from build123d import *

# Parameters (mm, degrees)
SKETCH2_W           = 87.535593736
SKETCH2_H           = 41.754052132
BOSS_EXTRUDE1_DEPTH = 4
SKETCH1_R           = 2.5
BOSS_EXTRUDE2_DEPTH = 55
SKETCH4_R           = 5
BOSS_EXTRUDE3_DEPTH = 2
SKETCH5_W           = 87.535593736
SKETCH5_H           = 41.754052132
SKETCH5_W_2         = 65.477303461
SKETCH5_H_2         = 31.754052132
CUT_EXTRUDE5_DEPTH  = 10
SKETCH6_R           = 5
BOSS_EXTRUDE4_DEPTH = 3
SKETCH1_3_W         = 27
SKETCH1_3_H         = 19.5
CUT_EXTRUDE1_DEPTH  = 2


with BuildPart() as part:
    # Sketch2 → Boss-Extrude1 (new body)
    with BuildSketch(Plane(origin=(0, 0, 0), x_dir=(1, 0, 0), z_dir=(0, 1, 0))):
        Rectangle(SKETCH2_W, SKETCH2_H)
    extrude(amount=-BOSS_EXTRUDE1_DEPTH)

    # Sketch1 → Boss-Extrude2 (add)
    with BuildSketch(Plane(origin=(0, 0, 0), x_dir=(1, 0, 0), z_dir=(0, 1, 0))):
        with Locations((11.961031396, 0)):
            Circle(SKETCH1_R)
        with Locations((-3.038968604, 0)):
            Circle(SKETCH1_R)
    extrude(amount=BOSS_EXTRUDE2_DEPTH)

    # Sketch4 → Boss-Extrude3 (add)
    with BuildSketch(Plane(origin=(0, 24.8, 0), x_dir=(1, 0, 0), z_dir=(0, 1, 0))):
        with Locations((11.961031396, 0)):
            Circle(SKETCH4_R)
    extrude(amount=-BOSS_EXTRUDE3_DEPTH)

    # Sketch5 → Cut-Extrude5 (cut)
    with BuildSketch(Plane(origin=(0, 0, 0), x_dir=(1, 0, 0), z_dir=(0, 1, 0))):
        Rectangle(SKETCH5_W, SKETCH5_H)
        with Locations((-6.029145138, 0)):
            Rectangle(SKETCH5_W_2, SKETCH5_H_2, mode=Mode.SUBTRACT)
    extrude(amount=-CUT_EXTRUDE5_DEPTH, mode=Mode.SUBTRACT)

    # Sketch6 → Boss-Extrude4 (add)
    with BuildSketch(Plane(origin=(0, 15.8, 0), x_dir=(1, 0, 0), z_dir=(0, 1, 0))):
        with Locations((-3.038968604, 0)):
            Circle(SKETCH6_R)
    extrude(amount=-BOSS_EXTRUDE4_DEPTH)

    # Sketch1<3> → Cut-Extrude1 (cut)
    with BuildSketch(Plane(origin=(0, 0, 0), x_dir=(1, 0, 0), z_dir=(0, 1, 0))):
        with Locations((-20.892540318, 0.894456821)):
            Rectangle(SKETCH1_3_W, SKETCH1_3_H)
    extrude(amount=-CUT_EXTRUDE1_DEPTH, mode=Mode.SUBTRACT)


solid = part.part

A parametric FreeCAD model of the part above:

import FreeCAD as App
import Part
import Sketcher

V = App.Vector

doc = App.newDocument("Part")
body = doc.addObject("PartDesign::Body", "Body")

# Sketch on XZ plane
sketch1 = doc.addObject("Sketcher::SketchObject", "Sketch")
body.addObject(sketch1)
sketch1.AttachmentSupport = (doc.XZ_Plane, [""])
sketch1.MapMode = "FlatFace"
sketch1.addGeometry(Part.LineSegment(V(-44, -21, 0), V(-44, 21, 0)), False)
sketch1.addGeometry(Part.LineSegment(V(-44, 21, 0), V(44, 21, 0)), False)
sketch1.addGeometry(Part.LineSegment(V(44, 21, 0), V(44, -21, 0)), False)
sketch1.addGeometry(Part.LineSegment(V(44, -21, 0), V(-44, -21, 0)), False)
sketch1.addConstraint(Sketcher.Constraint("Coincident", 0, 2, 1, 1))
sketch1.addConstraint(Sketcher.Constraint("Coincident", 1, 2, 2, 1))
sketch1.addConstraint(Sketcher.Constraint("Coincident", 2, 2, 3, 1))
sketch1.addConstraint(Sketcher.Constraint("Coincident", 3, 2, 0, 1))
sketch1.addConstraint(Sketcher.Constraint("Vertical", 0))
sketch1.addConstraint(Sketcher.Constraint("Horizontal", 1))
sketch1.addConstraint(Sketcher.Constraint("Vertical", 2))
sketch1.addConstraint(Sketcher.Constraint("Horizontal", 3))
sketch1.addConstraint(Sketcher.Constraint("Symmetric", 0, 2, 2, 2, -1, 1))
sketch1.addConstraint(Sketcher.Constraint("DistanceX", 1, 1, 1, 2, 87.535594))
sketch1.addConstraint(Sketcher.Constraint("DistanceY", 0, 1, 0, 2, 41.754052))
pad1 = doc.addObject("PartDesign::Pad", "Pad")
body.addObject(pad1)
pad1.Profile = sketch1
pad1.Length = 4

# Sketch on XZ plane
sketch2 = doc.addObject("Sketcher::SketchObject", "Sketch001")
body.addObject(sketch2)
sketch2.AttachmentSupport = (doc.XZ_Plane, [""])
sketch2.MapMode = "FlatFace"
sketch2.addGeometry(Part.Circle(V(12, 0, 0), V(0, 0, 1), 2.5), False)
sketch2.addGeometry(Part.Circle(V(-3, 0, 0), V(0, 0, 1), 2.5), False)
sketch2.addConstraint(Sketcher.Constraint("Equal", 0, 1))
sketch2.addConstraint(Sketcher.Constraint("PointOnObject", 0, 3, -1))
sketch2.addConstraint(Sketcher.Constraint("PointOnObject", 1, 3, -1))
sketch2.addConstraint(Sketcher.Constraint("Diameter", 0, 5.0))
sketch2.addConstraint(Sketcher.Constraint("DistanceX", 1, 3, 0, 3, 15.0))
sketch2.addConstraint(Sketcher.Constraint("DistanceX", -1, 1, 0, 3, 11.961031))
pad2 = doc.addObject("PartDesign::Pad", "Pad001")
body.addObject(pad2)
pad2.Profile = sketch2
pad2.Length = 55
pad2.Reversed = True

# Sketch on XZ plane
sketch3 = doc.addObject("Sketcher::SketchObject", "Sketch002")
body.addObject(sketch3)
sketch3.AttachmentSupport = (doc.XZ_Plane, [""])
sketch3.MapMode = "FlatFace"
sketch3.AttachmentOffset = App.Placement(V(0, 0, -24.8), App.Rotation())
sketch3.addGeometry(Part.Circle(V(12, 0, 0), V(0, 0, 1), 5), False)
sketch3.addConstraint(Sketcher.Constraint("PointOnObject", 0, 3, -1))
sketch3.addConstraint(Sketcher.Constraint("Diameter", 0, 10.0))
sketch3.addConstraint(Sketcher.Constraint("DistanceX", -1, 1, 0, 3, 11.961031))
pad3 = doc.addObject("PartDesign::Pad", "Pad002")
body.addObject(pad3)
pad3.Profile = sketch3
pad3.Length = 2

# Sketch on XZ plane
sketch4 = doc.addObject("Sketcher::SketchObject", "Sketch003")
body.addObject(sketch4)
sketch4.AttachmentSupport = (doc.XZ_Plane, [""])
sketch4.MapMode = "FlatFace"
sketch4.addGeometry(Part.LineSegment(V(-44, -21, 0), V(-44, 21, 0)), False)
sketch4.addGeometry(Part.LineSegment(V(-44, 21, 0), V(44, 21, 0)), False)
sketch4.addGeometry(Part.LineSegment(V(44, 21, 0), V(44, -21, 0)), False)
sketch4.addGeometry(Part.LineSegment(V(44, -21, 0), V(-44, -21, 0)), False)
sketch4.addGeometry(Part.LineSegment(V(27, 16, 0), V(-39, 16, 0)), False)
sketch4.addGeometry(Part.LineSegment(V(-39, 16, 0), V(-39, -16, 0)), False)
sketch4.addGeometry(Part.LineSegment(V(-39, -16, 0), V(27, -16, 0)), False)
sketch4.addGeometry(Part.LineSegment(V(27, -16, 0), V(27, 16, 0)), False)
sketch4.addConstraint(Sketcher.Constraint("Coincident", 0, 2, 1, 1))
sketch4.addConstraint(Sketcher.Constraint("Coincident", 1, 2, 2, 1))
sketch4.addConstraint(Sketcher.Constraint("Coincident", 2, 2, 3, 1))
sketch4.addConstraint(Sketcher.Constraint("Coincident", 3, 2, 0, 1))
sketch4.addConstraint(Sketcher.Constraint("Coincident", 4, 2, 5, 1))
sketch4.addConstraint(Sketcher.Constraint("Coincident", 5, 2, 6, 1))
sketch4.addConstraint(Sketcher.Constraint("Coincident", 6, 2, 7, 1))
sketch4.addConstraint(Sketcher.Constraint("Coincident", 7, 2, 4, 1))
sketch4.addConstraint(Sketcher.Constraint("Vertical", 0))
sketch4.addConstraint(Sketcher.Constraint("Horizontal", 1))
sketch4.addConstraint(Sketcher.Constraint("Vertical", 2))
sketch4.addConstraint(Sketcher.Constraint("Horizontal", 3))
sketch4.addConstraint(Sketcher.Constraint("Horizontal", 4))
sketch4.addConstraint(Sketcher.Constraint("Vertical", 5))
sketch4.addConstraint(Sketcher.Constraint("Horizontal", 6))
sketch4.addConstraint(Sketcher.Constraint("Vertical", 7))
sketch4.addConstraint(Sketcher.Constraint("Symmetric", 0, 2, 2, 2, -1, 1))
sketch4.addConstraint(Sketcher.Constraint("DistanceX", 0, 2, 4, 2, 5.0))
sketch4.addConstraint(Sketcher.Constraint("DistanceY", 4, 2, 0, 2, 5.0))
sketch4.addConstraint(Sketcher.Constraint("DistanceY", 3, 2, 5, 2, 5.0))
sketch4.addConstraint(Sketcher.Constraint("DistanceX", 1, 1, 1, 2, 87.535594))
sketch4.addConstraint(Sketcher.Constraint("DistanceX", 4, 2, 4, 1, 65.477303))
sketch4.addConstraint(Sketcher.Constraint("DistanceY", 0, 1, 0, 2, 41.754052))
pocket1 = doc.addObject("PartDesign::Pocket", "Pocket")
body.addObject(pocket1)
pocket1.Profile = sketch4
pocket1.Length = 10
pocket1.Reversed = True

# Sketch on XZ plane
sketch5 = doc.addObject("Sketcher::SketchObject", "Sketch004")
body.addObject(sketch5)
sketch5.AttachmentSupport = (doc.XZ_Plane, [""])
sketch5.MapMode = "FlatFace"
sketch5.AttachmentOffset = App.Placement(V(0, 0, -15.8), App.Rotation())
sketch5.addGeometry(Part.Circle(V(-3, 0, 0), V(0, 0, 1), 5), False)
sketch5.addConstraint(Sketcher.Constraint("PointOnObject", 0, 3, -1))
sketch5.addConstraint(Sketcher.Constraint("Diameter", 0, 10.0))
sketch5.addConstraint(Sketcher.Constraint("DistanceX", 0, 3, -1, 1, 3.038969))
pad4 = doc.addObject("PartDesign::Pad", "Pad003")
body.addObject(pad4)
pad4.Profile = sketch5
pad4.Length = 3

# Sketch on XZ plane
sketch6 = doc.addObject("Sketcher::SketchObject", "Sketch005")
body.addObject(sketch6)
sketch6.AttachmentSupport = (doc.XZ_Plane, [""])
sketch6.MapMode = "FlatFace"
sketch6.addGeometry(Part.LineSegment(V(-34, -11, 0), V(-34, 9, 0)), False)
sketch6.addGeometry(Part.LineSegment(V(-34, 9, 0), V(-7, 9, 0)), False)
sketch6.addGeometry(Part.LineSegment(V(-7, 9, 0), V(-7, -11, 0)), False)
sketch6.addGeometry(Part.LineSegment(V(-7, -11, 0), V(-34, -11, 0)), False)
sketch6.addConstraint(Sketcher.Constraint("Coincident", 0, 2, 1, 1))
sketch6.addConstraint(Sketcher.Constraint("Coincident", 1, 2, 2, 1))
sketch6.addConstraint(Sketcher.Constraint("Coincident", 2, 2, 3, 1))
sketch6.addConstraint(Sketcher.Constraint("Coincident", 3, 2, 0, 1))
sketch6.addConstraint(Sketcher.Constraint("Vertical", 0))
sketch6.addConstraint(Sketcher.Constraint("Horizontal", 1))
sketch6.addConstraint(Sketcher.Constraint("Vertical", 2))
sketch6.addConstraint(Sketcher.Constraint("Horizontal", 3))
sketch6.addConstraint(Sketcher.Constraint("DistanceX", 1, 1, 1, 2, 27.0))
sketch6.addConstraint(Sketcher.Constraint("DistanceY", 0, 1, 0, 2, 19.5))
sketch6.addConstraint(Sketcher.Constraint("DistanceX", 0, 2, -1, 1, 34.39254))
sketch6.addConstraint(Sketcher.Constraint("DistanceY", -1, 1, 0, 2, 8.855543))
pocket2 = doc.addObject("PartDesign::Pocket", "Pocket001")
body.addObject(pocket2)
pocket2.Profile = sketch6
pocket2.Length = 2
pocket2.Reversed = True

doc.recompute()
